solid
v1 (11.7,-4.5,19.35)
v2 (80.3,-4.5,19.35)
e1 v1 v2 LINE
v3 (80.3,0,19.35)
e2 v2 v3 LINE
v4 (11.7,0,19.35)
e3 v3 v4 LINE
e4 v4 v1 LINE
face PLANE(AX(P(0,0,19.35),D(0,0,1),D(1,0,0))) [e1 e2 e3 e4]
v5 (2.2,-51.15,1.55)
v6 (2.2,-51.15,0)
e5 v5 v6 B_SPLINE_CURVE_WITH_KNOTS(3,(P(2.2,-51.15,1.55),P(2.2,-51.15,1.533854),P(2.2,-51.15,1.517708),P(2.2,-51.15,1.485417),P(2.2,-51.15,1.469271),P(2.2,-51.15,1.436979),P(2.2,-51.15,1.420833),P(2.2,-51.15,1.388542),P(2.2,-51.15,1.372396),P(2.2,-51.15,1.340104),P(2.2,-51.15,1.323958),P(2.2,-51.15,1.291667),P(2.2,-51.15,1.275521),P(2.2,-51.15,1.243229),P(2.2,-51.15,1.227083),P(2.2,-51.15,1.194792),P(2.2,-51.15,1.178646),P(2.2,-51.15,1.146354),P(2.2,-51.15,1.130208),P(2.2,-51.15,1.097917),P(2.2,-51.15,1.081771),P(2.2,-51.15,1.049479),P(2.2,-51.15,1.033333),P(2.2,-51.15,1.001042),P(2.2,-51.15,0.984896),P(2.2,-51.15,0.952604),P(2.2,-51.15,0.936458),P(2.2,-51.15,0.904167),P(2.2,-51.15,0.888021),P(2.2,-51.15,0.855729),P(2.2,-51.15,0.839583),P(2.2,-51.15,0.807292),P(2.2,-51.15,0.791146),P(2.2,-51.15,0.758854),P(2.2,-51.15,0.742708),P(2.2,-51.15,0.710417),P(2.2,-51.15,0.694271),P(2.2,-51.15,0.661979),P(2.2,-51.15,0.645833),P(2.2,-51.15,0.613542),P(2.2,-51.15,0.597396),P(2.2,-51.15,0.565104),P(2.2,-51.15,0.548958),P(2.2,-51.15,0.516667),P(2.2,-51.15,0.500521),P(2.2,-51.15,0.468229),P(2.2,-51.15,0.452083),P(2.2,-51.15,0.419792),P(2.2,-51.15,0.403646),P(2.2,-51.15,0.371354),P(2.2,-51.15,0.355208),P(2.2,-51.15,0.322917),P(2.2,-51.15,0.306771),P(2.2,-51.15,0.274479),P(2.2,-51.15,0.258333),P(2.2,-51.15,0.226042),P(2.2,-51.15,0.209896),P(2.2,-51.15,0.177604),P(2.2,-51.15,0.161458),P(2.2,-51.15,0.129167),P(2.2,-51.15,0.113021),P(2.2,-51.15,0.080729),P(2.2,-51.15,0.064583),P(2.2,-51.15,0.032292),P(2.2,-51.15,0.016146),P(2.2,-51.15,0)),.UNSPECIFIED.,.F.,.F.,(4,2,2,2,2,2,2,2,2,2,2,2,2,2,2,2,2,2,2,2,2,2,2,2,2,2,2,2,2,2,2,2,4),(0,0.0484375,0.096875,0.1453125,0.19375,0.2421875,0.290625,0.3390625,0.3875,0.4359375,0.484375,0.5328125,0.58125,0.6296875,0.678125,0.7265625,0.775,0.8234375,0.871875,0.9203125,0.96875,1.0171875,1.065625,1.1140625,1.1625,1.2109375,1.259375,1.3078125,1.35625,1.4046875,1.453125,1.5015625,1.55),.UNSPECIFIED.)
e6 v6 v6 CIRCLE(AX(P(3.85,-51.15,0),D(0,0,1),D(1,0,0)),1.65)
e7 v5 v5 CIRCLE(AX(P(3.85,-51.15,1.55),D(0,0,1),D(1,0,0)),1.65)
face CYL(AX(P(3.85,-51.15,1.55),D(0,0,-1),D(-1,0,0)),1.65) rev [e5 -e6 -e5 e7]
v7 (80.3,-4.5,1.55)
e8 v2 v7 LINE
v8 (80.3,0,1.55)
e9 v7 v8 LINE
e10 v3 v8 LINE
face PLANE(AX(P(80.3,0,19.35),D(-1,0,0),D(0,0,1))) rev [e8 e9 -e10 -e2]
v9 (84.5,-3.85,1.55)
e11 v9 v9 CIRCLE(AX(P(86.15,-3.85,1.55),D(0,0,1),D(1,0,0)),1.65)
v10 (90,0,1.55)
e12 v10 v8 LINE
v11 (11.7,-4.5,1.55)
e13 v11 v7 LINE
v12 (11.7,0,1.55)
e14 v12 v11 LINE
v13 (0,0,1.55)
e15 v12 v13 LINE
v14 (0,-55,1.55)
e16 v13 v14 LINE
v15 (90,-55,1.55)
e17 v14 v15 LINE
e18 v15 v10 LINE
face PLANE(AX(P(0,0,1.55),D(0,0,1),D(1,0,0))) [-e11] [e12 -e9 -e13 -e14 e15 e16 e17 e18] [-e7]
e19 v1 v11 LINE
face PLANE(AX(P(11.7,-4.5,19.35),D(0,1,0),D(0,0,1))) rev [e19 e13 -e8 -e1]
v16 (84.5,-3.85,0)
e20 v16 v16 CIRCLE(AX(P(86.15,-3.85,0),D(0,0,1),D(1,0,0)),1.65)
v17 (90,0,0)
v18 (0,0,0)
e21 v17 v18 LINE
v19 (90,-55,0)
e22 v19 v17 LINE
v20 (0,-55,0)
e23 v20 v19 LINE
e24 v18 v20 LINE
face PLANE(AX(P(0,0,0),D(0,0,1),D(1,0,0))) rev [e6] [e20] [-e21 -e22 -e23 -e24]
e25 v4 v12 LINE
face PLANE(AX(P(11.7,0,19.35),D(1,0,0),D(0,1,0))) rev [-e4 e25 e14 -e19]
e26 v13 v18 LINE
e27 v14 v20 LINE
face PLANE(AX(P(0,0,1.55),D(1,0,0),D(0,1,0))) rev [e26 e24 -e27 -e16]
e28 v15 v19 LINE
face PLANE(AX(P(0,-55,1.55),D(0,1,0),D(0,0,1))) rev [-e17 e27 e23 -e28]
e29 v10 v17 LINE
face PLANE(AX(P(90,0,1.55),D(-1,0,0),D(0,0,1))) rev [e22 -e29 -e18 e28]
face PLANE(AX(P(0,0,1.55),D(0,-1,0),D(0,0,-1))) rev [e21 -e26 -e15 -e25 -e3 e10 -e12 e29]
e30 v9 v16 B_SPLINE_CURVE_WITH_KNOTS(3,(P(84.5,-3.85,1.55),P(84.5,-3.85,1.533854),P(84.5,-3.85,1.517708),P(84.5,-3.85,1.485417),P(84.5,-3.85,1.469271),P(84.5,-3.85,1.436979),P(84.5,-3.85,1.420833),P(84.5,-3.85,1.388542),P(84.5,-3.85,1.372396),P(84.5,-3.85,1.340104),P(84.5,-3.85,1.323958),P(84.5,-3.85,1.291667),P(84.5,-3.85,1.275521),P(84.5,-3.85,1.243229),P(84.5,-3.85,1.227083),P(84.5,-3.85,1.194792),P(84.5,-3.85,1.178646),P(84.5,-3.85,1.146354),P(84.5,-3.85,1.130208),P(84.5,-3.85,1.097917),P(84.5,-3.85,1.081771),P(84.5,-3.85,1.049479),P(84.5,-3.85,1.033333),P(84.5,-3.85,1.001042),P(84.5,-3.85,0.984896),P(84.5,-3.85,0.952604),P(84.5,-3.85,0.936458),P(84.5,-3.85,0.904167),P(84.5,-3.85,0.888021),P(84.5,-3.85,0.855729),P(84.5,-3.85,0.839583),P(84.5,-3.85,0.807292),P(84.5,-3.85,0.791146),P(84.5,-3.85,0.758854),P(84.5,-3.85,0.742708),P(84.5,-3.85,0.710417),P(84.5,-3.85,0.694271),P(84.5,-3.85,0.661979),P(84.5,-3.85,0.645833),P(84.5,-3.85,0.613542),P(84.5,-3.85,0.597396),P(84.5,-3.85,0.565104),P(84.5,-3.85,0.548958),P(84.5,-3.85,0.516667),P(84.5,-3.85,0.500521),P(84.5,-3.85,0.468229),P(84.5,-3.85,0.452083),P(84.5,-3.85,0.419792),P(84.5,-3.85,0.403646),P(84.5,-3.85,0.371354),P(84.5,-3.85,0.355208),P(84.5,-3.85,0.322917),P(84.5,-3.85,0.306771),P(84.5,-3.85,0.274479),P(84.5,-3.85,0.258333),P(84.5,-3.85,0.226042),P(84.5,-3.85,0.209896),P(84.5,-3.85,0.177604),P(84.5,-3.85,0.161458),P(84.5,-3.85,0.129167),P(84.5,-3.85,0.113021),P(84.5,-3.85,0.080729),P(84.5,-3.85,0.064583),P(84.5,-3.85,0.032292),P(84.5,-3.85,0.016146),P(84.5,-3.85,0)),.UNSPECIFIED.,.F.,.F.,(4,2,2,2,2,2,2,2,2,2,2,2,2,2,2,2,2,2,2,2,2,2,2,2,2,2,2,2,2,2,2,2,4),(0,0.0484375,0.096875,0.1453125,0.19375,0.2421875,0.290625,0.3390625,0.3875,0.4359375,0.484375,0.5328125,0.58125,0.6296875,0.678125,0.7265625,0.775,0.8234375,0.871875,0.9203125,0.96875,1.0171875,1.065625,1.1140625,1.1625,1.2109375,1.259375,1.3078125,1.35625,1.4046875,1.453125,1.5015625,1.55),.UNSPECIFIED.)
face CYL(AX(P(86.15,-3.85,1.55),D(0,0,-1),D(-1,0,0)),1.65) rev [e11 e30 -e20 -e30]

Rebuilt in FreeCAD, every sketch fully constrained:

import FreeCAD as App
import Part
import Sketcher

V = App.Vector
Q = App.Units.Quantity


def add_polygon(sketch, points):
    """Adds a closed chain of lines whose ends are joined by coincident constraints."""
    first, n = sketch.GeometryCount, len(points)
    for a, b in zip(points, points[1:] + points[:1]):
        sketch.addGeometry(Part.LineSegment(App.Vector(*a, 0), App.Vector(*b, 0)), False)
    for i in range(n):
        sketch.addConstraint(Sketcher.Constraint("Coincident", first + i, 2, first + (i + 1) % n, 1))

doc = App.newDocument("Part")
body = doc.addObject("PartDesign::Body", "Body")

# Sketch on XY plane
sketch1 = doc.addObject("Sketcher::SketchObject", "Sketch")
body.addObject(sketch1)
sketch1.AttachmentSupport = (doc.XY_Plane, [""])
sketch1.MapMode = "FlatFace"
add_polygon(sketch1, [(0, 0), (0, -55), (90, -55), (90, 0)])  # lines 0-3
sketch1.addGeometry(Part.Circle(V(3.9, -51.1, 0), V(0, 0, 1), 1.6), False)  # 4
sketch1.addGeometry(Part.Circle(V(86.2, -3.9, 0), V(0, 0, 1), 1.6), False)  # 5
sketch1.addConstraint(Sketcher.Constraint("Vertical", 0))
sketch1.addConstraint(Sketcher.Constraint("Horizontal", 1))
sketch1.addConstraint(Sketcher.Constraint("Vertical", 2))
sketch1.addConstraint(Sketcher.Constraint("Horizontal", 3))
sketch1.addConstraint(Sketcher.Constraint("Coincident", 3, 2, -1, 1))
sketch1.addConstraint(Sketcher.Constraint("Equal", 4, 5))
sketch1.addConstraint(Sketcher.Constraint("Diameter", 4, Q("3.3 mm")))
sketch1.addConstraint(Sketcher.Constraint("DistanceX", 1, 1, 1, 2, Q("90 mm")))
sketch1.addConstraint(Sketcher.Constraint("DistanceY", 0, 2, 0, 1, Q("55 mm")))
sketch1.addConstraint(Sketcher.Constraint("DistanceX", 4, 3, 5, 3, Q("82.3 mm")))
sketch1.addConstraint(Sketcher.Constraint("DistanceY", 4, 3, 5, 3, Q("47.3 mm")))
sketch1.addConstraint(Sketcher.Constraint("DistanceX", -1, 1, 4, 3, Q("3.85 mm")))
sketch1.addConstraint(Sketcher.Constraint("DistanceY", 4, 3, -1, 1, Q("51.15 mm")))
pad1 = doc.addObject("PartDesign::Pad", "Pad")
body.addObject(pad1)
pad1.Profile = sketch1
pad1.Length = 1.55

# Sketch on XY plane
sketch2 = doc.addObject("Sketcher::SketchObject", "Sketch001")
body.addObject(sketch2)
sketch2.AttachmentSupport = (doc.XY_Plane, [""])
sketch2.MapMode = "FlatFace"
sketch2.AttachmentOffset = App.Placement(V(0, 0, 1.55), App.Rotation())
add_polygon(sketch2, [(11.7, 0), (11.7, -4.5), (80.3, -4.5), (80.3, 0)])  # lines 0-3
sketch2.addConstraint(Sketcher.Constraint("Vertical", 0))
sketch2.addConstraint(Sketcher.Constraint("Horizontal", 1))
sketch2.addConstraint(Sketcher.Constraint("Vertical", 2))
sketch2.addConstraint(Sketcher.Constraint("Horizontal", 3))
sketch2.addConstraint(Sketcher.Constraint("PointOnObject", 2, 2, -1))
sketch2.addConstraint(Sketcher.Constraint("DistanceX", 1, 1, 1, 2, Q("68.6 mm")))
sketch2.addConstraint(Sketcher.Constraint("DistanceY", 0, 2, 0, 1, Q("4.5 mm")))
sketch2.addConstraint(Sketcher.Constraint("DistanceX", -1, 1, 0, 2, Q("11.7 mm")))
pad2 = doc.addObject("PartDesign::Pad", "Pad001")
body.addObject(pad2)
pad2.Profile = sketch2
pad2.Length = 17.8

doc.recompute()
